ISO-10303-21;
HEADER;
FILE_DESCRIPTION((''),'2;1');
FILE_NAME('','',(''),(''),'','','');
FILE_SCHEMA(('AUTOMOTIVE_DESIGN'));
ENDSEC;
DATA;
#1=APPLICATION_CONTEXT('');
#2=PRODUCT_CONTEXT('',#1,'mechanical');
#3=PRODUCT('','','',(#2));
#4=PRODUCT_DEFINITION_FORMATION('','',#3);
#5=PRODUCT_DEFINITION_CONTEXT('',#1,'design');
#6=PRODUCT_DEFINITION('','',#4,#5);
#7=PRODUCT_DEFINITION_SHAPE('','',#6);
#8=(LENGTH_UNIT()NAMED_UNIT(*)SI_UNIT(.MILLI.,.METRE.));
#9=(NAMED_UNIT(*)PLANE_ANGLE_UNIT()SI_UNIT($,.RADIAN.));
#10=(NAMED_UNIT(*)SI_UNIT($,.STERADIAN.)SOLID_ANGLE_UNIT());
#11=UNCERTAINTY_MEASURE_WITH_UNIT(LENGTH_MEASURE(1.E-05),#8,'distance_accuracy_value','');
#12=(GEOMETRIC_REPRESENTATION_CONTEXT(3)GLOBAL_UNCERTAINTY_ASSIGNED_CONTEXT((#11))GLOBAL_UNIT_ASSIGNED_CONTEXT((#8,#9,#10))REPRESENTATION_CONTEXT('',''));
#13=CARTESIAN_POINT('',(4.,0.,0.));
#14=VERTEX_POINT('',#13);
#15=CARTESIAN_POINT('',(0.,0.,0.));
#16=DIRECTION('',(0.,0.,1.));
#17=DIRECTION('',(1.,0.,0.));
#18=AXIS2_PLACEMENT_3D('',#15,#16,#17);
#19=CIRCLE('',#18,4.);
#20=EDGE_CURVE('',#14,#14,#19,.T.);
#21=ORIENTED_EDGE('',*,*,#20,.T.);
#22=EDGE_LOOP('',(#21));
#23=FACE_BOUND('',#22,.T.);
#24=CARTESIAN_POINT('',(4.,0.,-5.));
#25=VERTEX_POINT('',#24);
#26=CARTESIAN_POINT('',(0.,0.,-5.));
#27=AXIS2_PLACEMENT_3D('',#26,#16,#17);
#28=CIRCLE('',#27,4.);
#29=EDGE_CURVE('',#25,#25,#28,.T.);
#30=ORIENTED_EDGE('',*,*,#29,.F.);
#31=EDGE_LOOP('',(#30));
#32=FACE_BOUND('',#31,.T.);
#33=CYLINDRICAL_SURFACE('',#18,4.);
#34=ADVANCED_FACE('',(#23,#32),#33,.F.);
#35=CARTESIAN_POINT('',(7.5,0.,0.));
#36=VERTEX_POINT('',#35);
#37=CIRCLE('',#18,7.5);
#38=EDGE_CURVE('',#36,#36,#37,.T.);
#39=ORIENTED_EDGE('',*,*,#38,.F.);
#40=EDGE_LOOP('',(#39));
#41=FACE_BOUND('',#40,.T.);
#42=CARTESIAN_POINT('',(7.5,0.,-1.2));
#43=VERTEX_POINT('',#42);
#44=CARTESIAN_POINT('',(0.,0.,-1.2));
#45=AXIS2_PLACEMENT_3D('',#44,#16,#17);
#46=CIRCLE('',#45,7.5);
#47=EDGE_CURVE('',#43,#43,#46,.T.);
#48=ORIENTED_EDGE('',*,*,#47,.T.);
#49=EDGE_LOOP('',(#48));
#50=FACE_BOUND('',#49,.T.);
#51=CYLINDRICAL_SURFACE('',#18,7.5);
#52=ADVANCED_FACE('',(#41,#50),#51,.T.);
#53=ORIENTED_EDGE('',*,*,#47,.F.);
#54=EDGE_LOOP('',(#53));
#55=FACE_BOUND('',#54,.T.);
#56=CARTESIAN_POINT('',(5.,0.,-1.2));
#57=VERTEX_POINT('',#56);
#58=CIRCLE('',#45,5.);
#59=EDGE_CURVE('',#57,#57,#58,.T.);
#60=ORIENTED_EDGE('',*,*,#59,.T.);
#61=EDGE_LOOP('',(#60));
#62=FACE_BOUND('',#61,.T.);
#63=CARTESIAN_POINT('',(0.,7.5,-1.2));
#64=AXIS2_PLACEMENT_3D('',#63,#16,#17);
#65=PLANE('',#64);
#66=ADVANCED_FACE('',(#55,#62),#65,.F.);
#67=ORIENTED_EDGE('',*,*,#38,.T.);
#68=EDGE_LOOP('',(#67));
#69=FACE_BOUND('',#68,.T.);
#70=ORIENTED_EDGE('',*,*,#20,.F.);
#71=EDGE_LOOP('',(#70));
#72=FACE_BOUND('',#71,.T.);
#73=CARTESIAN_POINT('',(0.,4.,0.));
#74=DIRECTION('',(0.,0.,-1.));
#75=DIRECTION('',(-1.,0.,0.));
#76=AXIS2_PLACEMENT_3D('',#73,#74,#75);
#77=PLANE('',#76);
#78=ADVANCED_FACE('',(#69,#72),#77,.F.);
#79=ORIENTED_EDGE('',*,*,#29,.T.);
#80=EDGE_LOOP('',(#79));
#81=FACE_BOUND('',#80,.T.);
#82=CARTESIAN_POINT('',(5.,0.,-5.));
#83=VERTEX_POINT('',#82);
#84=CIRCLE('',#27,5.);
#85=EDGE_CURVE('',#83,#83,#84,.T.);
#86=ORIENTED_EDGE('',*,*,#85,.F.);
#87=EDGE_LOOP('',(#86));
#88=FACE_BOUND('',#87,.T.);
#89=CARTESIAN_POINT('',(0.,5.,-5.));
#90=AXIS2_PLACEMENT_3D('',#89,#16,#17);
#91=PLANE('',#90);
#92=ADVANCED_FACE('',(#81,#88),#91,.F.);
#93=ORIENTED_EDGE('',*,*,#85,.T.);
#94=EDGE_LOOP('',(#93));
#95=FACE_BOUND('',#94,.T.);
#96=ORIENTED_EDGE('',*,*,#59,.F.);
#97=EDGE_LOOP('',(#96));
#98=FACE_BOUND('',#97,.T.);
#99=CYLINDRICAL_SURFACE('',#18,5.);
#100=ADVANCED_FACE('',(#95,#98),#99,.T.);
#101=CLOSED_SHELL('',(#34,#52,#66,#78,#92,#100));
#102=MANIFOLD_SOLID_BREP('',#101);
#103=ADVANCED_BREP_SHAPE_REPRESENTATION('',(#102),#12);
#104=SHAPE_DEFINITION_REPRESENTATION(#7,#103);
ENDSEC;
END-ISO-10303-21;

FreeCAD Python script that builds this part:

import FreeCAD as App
import Part
import Sketcher

V = App.Vector
Q = App.Units.Quantity


def add_polygon(sketch, points):
    """Adds a closed chain of lines whose ends are joined by coincident constraints."""
    first, n = sketch.GeometryCount, len(points)
    for a, b in zip(points, points[1:] + points[:1]):
        sketch.addGeometry(Part.LineSegment(App.Vector(*a, 0), App.Vector(*b, 0)), False)
    for i in range(n):
        sketch.addConstraint(Sketcher.Constraint("Coincident", first + i, 2, first + (i + 1) % n, 1))

doc = App.newDocument("Part")
body = doc.addObject("PartDesign::Body", "Body")

sketch1 = body.newObject("Sketcher::SketchObject", "Sketch")
sketch1.AttachmentSupport = (doc.getObject("YZ_Plane"), [""])
sketch1.MapMode = "FlatFace"
add_polygon(sketch1, [(7.5, 0), (4, 0), (4, -5), (5, -5), (5, -1.2), (7.5, -1.2)])
sketch1.addConstraint([
    Sketcher.Constraint("Horizontal", 0),
    Sketcher.Constraint("Vertical", 1),
    Sketcher.Constraint("Horizontal", 2),
    Sketcher.Constraint("Vertical", 3),
    Sketcher.Constraint("Horizontal", 4),
    Sketcher.Constraint("Vertical", 5),
    Sketcher.Constraint("PointOnObject", 0, 2, -1),
    Sketcher.Constraint("DistanceX", 2, 1, 2, 2, Q("1 mm")),
    Sketcher.Constraint("DistanceY", 1, 2, 1, 1, Q("5 mm")),
    Sketcher.Constraint("DistanceX", 0, 2, 0, 1, Q("3.5 mm")),
    Sketcher.Constraint("DistanceY", 3, 1, 3, 2, Q("3.8 mm")),
    Sketcher.Constraint("DistanceX", -1, 1, 0, 2, Q("4 mm")),
])
revolution = body.newObject("PartDesign::Revolution", "Revolution")
revolution.Profile = sketch1
revolution.ReferenceAxis = (sketch1, ["V_Axis"])
revolution.Angle = 360

doc.recompute()
